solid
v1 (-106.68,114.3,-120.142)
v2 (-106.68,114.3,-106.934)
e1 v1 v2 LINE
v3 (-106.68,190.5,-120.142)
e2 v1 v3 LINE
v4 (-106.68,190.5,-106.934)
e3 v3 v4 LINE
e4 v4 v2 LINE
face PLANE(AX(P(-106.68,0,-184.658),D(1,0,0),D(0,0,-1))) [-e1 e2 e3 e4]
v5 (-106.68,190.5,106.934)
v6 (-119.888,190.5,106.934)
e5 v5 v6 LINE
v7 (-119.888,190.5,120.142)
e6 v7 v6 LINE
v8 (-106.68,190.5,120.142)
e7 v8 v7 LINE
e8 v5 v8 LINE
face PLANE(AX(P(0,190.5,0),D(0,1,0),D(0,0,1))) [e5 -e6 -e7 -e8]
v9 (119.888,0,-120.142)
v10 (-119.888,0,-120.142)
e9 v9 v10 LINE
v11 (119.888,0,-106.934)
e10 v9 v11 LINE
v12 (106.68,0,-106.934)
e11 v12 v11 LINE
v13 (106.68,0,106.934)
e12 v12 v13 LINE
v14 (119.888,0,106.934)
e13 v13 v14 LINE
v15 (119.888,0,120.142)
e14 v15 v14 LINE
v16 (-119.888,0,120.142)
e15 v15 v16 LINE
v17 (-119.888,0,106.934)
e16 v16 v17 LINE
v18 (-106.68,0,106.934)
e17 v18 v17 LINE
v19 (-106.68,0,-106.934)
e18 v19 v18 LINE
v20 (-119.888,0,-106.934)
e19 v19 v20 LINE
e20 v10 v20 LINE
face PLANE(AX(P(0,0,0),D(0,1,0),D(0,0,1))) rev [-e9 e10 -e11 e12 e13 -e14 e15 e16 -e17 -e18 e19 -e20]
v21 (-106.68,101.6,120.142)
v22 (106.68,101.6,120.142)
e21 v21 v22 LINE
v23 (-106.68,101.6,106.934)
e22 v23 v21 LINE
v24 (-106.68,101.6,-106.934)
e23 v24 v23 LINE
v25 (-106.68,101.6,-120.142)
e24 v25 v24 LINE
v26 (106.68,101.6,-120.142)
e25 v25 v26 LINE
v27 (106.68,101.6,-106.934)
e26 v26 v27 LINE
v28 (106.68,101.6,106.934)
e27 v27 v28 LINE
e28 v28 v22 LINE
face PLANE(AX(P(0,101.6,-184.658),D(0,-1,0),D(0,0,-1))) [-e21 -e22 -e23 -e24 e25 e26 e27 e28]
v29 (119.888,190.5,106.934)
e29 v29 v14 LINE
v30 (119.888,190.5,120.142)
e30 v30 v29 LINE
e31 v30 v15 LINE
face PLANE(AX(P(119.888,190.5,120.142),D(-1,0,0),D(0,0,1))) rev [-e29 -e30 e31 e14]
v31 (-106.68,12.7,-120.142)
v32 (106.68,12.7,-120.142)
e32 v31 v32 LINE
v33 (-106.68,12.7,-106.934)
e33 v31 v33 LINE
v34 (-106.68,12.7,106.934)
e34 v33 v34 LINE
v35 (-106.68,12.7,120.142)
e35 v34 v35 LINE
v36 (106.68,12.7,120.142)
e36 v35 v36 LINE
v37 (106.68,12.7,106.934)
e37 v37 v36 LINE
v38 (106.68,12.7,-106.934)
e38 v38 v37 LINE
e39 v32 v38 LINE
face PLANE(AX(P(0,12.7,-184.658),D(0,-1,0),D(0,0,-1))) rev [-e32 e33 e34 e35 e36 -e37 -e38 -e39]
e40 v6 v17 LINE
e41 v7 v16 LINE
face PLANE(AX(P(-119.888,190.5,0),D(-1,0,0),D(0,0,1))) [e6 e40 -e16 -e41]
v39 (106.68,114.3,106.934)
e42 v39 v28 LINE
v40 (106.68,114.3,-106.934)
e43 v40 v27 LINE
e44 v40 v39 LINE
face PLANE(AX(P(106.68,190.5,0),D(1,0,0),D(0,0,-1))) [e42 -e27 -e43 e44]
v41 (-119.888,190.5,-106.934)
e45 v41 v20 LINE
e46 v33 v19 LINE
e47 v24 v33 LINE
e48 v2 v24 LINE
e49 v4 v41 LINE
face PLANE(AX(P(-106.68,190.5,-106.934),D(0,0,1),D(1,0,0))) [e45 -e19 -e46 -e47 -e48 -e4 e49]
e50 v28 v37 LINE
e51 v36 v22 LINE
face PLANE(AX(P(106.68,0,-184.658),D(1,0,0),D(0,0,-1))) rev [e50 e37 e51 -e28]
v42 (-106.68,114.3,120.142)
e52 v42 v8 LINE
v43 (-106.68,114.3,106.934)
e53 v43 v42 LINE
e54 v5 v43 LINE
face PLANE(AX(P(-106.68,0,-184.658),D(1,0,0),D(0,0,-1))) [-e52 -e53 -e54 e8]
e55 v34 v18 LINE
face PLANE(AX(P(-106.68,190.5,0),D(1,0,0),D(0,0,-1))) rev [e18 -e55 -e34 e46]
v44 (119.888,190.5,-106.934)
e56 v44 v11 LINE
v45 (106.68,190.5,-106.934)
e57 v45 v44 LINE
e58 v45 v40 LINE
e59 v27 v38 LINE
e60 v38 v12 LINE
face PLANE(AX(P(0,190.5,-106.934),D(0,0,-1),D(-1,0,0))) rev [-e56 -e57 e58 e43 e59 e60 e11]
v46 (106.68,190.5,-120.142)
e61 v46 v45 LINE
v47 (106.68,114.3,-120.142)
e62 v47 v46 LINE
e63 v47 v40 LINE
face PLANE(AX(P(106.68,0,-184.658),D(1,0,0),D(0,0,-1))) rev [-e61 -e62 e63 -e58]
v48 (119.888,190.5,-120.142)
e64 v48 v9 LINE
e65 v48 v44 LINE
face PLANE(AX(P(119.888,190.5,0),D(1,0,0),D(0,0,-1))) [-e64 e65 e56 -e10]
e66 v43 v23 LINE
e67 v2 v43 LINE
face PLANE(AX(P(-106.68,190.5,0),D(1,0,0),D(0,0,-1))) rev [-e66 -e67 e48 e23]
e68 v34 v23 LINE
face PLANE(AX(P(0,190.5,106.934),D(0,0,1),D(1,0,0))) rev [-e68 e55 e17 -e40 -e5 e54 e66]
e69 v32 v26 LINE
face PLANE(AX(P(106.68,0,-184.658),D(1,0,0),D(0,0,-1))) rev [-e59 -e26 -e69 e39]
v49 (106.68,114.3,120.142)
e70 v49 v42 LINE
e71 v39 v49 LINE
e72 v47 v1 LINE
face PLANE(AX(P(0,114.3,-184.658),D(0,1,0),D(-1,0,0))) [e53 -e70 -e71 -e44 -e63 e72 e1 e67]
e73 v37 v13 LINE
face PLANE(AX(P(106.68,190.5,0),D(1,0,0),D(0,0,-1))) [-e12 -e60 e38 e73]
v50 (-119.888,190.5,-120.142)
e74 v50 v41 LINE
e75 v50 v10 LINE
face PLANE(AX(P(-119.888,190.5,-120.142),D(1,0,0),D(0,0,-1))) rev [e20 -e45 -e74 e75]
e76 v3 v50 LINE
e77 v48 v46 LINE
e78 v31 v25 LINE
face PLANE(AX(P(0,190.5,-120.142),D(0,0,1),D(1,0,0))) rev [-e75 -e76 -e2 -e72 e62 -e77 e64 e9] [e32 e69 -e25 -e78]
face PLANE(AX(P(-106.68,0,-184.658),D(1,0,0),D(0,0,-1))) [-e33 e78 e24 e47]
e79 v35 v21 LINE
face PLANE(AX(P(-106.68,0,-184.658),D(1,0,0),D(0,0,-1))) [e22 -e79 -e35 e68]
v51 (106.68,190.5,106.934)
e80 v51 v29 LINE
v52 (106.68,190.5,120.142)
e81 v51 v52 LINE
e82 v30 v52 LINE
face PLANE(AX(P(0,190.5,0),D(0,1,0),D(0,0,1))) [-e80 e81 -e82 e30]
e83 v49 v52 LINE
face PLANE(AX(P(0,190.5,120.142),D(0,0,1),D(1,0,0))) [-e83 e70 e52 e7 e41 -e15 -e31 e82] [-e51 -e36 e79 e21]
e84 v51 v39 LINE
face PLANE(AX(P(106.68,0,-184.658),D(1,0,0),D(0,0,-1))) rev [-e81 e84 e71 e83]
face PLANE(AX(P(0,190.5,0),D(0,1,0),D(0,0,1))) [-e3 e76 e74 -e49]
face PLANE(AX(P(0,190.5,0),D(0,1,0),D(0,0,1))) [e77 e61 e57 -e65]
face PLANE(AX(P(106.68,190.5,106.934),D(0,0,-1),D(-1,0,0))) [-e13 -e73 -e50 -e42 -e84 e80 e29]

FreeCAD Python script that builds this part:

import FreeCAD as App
import Part
import Sketcher

V = App.Vector
Q = App.Units.Quantity

doc = App.newDocument("Part")
body = doc.addObject("PartDesign::Body", "Body")

# Sketch on XZ plane
sketch1 = body.newObject("Sketcher::SketchObject", "Sketch")
sketch1.AttachmentSupport = (doc.getObject("XZ_Plane"), [""])
sketch1.MapMode = "FlatFace"
sketch1.addGeometry([
    Part.LineSegment(V(-107, 107, 0), V(-120, 107, 0)),  # 0
    Part.LineSegment(V(-120, 107, 0), V(-120, 120, 0)),  # 1
    Part.LineSegment(V(-120, 120, 0), V(120, 120, 0)),  # 2
    Part.LineSegment(V(120, 120, 0), V(120, 107, 0)),  # 3
    Part.LineSegment(V(120, 107, 0), V(107, 107, 0)),  # 4
    Part.LineSegment(V(107, 107, 0), V(107, -107, 0)),  # 5
    Part.LineSegment(V(107, -107, 0), V(120, -107, 0)),  # 6
    Part.LineSegment(V(120, -107, 0), V(120, -120, 0)),  # 7
    Part.LineSegment(V(120, -120, 0), V(-120, -120, 0)),  # 8
    Part.LineSegment(V(-120, -120, 0), V(-120, -107, 0)),  # 9
    Part.LineSegment(V(-120, -107, 0), V(-107, -107, 0)),  # 10
    Part.LineSegment(V(-107, -107, 0), V(-107, 107, 0)),  # 11
], False)
sketch1.addConstraint([
    Sketcher.Constraint("Coincident", 0, 2, 1, 1),
    Sketcher.Constraint("Coincident", 1, 2, 2, 1),
    Sketcher.Constraint("Coincident", 2, 2, 3, 1),
    Sketcher.Constraint("Coincident", 3, 2, 4, 1),
    Sketcher.Constraint("Coincident", 4, 2, 5, 1),
    Sketcher.Constraint("Coincident", 5, 2, 6, 1),
    Sketcher.Constraint("Coincident", 6, 2, 7, 1),
    Sketcher.Constraint("Coincident", 7, 2, 8, 1),
    Sketcher.Constraint("Coincident", 8, 2, 9, 1),
    Sketcher.Constraint("Coincident", 9, 2, 10, 1),
    Sketcher.Constraint("Coincident", 10, 2, 11, 1),
    Sketcher.Constraint("Coincident", 11, 2, 0, 1),
    Sketcher.Constraint("Horizontal", 0),
    Sketcher.Constraint("Vertical", 1),
    Sketcher.Constraint("Horizontal", 2),
    Sketcher.Constraint("Vertical", 3),
    Sketcher.Constraint("Horizontal", 4),
    Sketcher.Constraint("Vertical", 5),
    Sketcher.Constraint("Horizontal", 6),
    Sketcher.Constraint("Vertical", 7),
    Sketcher.Constraint("Horizontal", 8),
    Sketcher.Constraint("Vertical", 9),
    Sketcher.Constraint("Horizontal", 10),
    Sketcher.Constraint("Vertical", 11),
    Sketcher.Constraint("Symmetric", 0, 2, 6, 2, -1, 1),
    Sketcher.Constraint("Symmetric", 2, 2, 8, 2, -1, 1),
    Sketcher.Constraint("Symmetric", 4, 2, 10, 2, -1, 1),
    Sketcher.Constraint("Symmetric", 0, 2, 3, 2, -2),
    Sketcher.Constraint("Equal", 10, 1),
    Sketcher.Constraint("DistanceX", 0, 2, 0, 1, Q("0.52 in")),
    Sketcher.Constraint("DistanceX", 2, 1, 2, 2, Q("9.44 in")),
    Sketcher.Constraint("DistanceY", 5, 2, 5, 1, Q("8.42 in")),
])
pad1 = body.newObject("PartDesign::Pad", "Pad")
pad1.Profile = sketch1
pad1.Length = Q("7.5 in")
pad1.Reversed = True

# Sketch on XY plane
sketch2 = body.newObject("Sketcher::SketchObject", "Sketch001")
sketch2.AttachmentSupport = (doc.getObject("XY_Plane"), [""])
sketch2.MapMode = "FlatFace"
sketch2.AttachmentOffset = App.Placement(V(0, 0, 4.73 * 25.4), App.Rotation())
sketch2.addGeometry([
    Part.LineSegment(V(-107, 102, 0), V(-107, 13, 0)),  # 0
    Part.LineSegment(V(-107, 13, 0), V(107, 13, 0)),  # 1
    Part.LineSegment(V(107, 13, 0), V(107, 102, 0)),  # 2
    Part.LineSegment(V(107, 102, 0), V(-107, 102, 0)),  # 3
    Part.LineSegment(V(-107, 190, 0), V(-107, 114, 0)),  # 4
    Part.LineSegment(V(-107, 114, 0), V(107, 114, 0)),  # 5
    Part.LineSegment(V(107, 114, 0), V(107, 190, 0)),  # 6
    Part.LineSegment(V(107, 190, 0), V(-107, 190, 0)),  # 7
], False)
sketch2.addConstraint([
    Sketcher.Constraint("Coincident", 0, 2, 1, 1),
    Sketcher.Constraint("Coincident", 1, 2, 2, 1),
    Sketcher.Constraint("Coincident", 2, 2, 3, 1),
    Sketcher.Constraint("Coincident", 3, 2, 0, 1),
    Sketcher.Constraint("Coincident", 4, 2, 5, 1),
    Sketcher.Constraint("Coincident", 5, 2, 6, 1),
    Sketcher.Constraint("Coincident", 6, 2, 7, 1),
    Sketcher.Constraint("Coincident", 7, 2, 4, 1),
    Sketcher.Constraint("Vertical", 0),
    Sketcher.Constraint("Horizontal", 1),
    Sketcher.Constraint("Vertical", 2),
    Sketcher.Constraint("Horizontal", 3),
    Sketcher.Constraint("Vertical", 4),
    Sketcher.Constraint("Horizontal", 5),
    Sketcher.Constraint("Vertical", 6),
    Sketcher.Constraint("Horizontal", 7),
    Sketcher.Constraint("Vertical", 3, 2, 4, 2),
    Sketcher.Constraint("Vertical", 2, 2, 5, 2),
    Sketcher.Constraint("DistanceY", 4, 2, 4, 1, Q("3 in")),
    Sketcher.Constraint("DistanceX", 1, 1, 1, 2, Q("8.4 in")),
    Sketcher.Constraint("DistanceY", 0, 2, 0, 1, Q("3.5 in")),
    Sketcher.Constraint("DistanceY", -1, 1, 2, 2, Q("4 in")),
    Sketcher.Constraint("DistanceY", 0, 2, 4, 2, Q("4 in")),
    Sketcher.Constraint("DistanceX", 0, 2, -1, 1, Q("4.2 in")),
])
pocket1 = body.newObject("PartDesign::Pocket", "Pocket")
pocket1.Profile = sketch2
pocket1.Length = Q("12 in")

doc.recompute()
